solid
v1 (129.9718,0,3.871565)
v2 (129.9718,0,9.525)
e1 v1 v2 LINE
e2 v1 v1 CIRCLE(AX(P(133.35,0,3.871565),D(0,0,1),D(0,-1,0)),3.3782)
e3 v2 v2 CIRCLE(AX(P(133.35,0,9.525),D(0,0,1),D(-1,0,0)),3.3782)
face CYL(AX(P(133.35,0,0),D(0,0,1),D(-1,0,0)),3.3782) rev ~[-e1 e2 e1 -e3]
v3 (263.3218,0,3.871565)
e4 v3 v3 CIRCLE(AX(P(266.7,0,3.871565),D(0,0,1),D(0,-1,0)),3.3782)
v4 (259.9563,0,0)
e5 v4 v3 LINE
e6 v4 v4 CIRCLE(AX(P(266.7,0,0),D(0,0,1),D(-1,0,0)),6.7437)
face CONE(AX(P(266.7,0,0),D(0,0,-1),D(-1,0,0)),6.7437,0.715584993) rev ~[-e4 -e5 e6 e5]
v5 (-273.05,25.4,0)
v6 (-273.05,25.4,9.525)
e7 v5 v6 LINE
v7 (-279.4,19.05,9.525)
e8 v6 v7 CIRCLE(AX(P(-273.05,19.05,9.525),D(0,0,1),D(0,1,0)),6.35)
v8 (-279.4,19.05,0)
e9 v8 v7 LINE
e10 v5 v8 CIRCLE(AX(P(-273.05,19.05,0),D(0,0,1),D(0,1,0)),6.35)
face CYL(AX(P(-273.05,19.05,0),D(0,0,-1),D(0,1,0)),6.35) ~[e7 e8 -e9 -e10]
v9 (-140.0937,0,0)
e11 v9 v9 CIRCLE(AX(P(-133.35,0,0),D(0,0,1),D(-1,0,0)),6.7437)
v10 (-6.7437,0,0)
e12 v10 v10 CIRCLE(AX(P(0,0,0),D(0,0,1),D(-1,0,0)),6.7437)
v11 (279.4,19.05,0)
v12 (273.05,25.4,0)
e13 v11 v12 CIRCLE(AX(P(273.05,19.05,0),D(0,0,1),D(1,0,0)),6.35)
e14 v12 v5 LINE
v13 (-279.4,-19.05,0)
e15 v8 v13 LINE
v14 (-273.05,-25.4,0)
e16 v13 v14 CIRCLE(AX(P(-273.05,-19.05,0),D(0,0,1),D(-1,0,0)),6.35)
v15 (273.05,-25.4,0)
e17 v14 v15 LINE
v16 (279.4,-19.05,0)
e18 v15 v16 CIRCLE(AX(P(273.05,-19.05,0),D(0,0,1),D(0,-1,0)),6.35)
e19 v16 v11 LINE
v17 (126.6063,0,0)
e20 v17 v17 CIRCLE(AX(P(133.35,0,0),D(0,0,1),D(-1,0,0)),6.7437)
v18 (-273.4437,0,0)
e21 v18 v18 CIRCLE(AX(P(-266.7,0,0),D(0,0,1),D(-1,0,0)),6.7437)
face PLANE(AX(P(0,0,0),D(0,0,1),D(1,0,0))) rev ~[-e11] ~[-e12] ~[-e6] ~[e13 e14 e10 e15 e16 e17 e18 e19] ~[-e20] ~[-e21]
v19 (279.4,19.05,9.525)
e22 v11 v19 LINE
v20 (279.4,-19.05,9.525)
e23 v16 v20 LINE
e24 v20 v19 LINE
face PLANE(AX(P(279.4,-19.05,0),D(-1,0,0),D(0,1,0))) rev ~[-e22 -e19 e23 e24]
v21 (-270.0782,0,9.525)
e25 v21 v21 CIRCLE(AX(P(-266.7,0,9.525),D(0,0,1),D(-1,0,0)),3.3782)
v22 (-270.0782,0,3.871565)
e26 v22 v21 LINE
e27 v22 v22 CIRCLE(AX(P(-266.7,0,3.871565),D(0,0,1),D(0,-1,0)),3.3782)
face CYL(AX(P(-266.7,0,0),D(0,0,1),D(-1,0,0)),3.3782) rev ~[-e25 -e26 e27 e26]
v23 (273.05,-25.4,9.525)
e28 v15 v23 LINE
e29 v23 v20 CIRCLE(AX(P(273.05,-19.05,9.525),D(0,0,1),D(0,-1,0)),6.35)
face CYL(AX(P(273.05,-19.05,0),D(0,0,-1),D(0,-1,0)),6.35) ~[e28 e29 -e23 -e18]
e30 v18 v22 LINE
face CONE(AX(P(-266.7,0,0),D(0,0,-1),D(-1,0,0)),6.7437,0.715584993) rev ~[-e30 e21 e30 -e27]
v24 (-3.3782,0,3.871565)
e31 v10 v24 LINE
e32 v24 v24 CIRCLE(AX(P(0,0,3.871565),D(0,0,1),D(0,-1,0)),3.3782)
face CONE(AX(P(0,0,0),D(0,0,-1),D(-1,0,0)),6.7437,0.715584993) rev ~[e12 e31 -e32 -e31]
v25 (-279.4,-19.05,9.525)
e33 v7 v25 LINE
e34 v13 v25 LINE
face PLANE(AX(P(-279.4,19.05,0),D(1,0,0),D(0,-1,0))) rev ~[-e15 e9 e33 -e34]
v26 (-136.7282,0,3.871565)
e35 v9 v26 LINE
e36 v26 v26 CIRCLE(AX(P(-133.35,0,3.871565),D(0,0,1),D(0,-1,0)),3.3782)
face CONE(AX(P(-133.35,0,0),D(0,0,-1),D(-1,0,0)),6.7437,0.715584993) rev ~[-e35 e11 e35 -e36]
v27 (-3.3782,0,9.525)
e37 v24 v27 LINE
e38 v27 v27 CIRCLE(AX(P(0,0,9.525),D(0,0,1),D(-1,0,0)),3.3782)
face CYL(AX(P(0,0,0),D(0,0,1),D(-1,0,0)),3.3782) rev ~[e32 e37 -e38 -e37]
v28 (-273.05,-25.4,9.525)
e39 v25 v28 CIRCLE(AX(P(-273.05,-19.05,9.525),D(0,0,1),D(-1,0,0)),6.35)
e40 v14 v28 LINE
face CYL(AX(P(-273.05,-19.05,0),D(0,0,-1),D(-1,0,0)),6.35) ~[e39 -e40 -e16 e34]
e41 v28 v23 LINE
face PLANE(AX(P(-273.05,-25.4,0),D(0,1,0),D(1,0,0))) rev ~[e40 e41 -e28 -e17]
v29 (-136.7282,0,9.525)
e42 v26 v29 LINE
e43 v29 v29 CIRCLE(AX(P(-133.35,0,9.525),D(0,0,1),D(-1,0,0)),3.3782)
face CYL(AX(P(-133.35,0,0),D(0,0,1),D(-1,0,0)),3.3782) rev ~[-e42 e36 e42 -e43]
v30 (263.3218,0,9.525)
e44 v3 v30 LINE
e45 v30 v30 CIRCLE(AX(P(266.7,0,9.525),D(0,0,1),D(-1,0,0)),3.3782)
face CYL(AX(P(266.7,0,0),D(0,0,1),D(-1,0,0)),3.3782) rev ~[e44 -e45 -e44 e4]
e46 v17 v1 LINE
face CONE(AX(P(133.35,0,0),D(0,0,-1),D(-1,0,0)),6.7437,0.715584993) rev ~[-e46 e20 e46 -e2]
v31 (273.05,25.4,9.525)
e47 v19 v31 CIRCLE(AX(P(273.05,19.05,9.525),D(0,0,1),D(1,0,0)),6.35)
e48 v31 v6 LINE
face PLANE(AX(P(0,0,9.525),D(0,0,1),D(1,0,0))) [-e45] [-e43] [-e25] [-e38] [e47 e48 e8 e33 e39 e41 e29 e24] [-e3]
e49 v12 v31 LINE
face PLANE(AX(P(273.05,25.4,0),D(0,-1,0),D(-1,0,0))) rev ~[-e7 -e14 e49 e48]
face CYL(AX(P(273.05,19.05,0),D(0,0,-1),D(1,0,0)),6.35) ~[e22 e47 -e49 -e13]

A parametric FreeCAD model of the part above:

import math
import FreeCAD as App
import Part
import Sketcher
from FreeCAD import Vector
Q = App.Units.Quantity

doc = App.newDocument("Part")
params = doc.addObject("Spreadsheet::Sheet", "Params")
for row, (alias, value) in enumerate([
    ("sketch1_radius", "0.25 in"),
    ("sketch1_width", "21.5 in"),
    ("sketch1_height", "1.5 in"),
    ("pad1_length", "0.375 in"),
    ("sketch2_diameter", "0.266 in"),
    ("hole_diameter", "0.266 in"),
    ("hole_csink_diameter", "0.531 in"),
], start=1):
    params.set(f"A{row}", alias)
    params.set(f"B{row}", "=" + value)
    params.setAlias(f"B{row}", alias)

body = doc.addObject("PartDesign::Body", "Body")

# Sketch on XY plane
sketch1 = body.newObject("Sketcher::SketchObject", "Sketch")
sketch1.AttachmentSupport = (doc.getObject("XY_Plane"), [""])
sketch1.MapMode = "FlatFace"
sketch1.addGeometry([
    Part.LineSegment(Vector(-273, -25, 0), Vector(273, -25, 0)),  # 0
    Part.ArcOfCircle(Part.Circle(Vector(273, -19, 0), Vector(0, 0, 1), 6), math.radians(-90), math.radians(0)),  # 1
    Part.LineSegment(Vector(279, -19, 0), Vector(279, 19, 0)),  # 2
    Part.ArcOfCircle(Part.Circle(Vector(273, 19, 0), Vector(0, 0, 1), 6), math.radians(0), math.radians(90)),  # 3
    Part.LineSegment(Vector(273, 25, 0), Vector(-273, 25, 0)),  # 4
    Part.ArcOfCircle(Part.Circle(Vector(-273, 19, 0), Vector(0, 0, 1), 6), math.radians(90), math.radians(180)),  # 5
    Part.LineSegment(Vector(-279, 19, 0), Vector(-279, -19, 0)),  # 6
    Part.ArcOfCircle(Part.Circle(Vector(-273, -19, 0), Vector(0, 0, 1), 6), math.radians(180), math.radians(270)),  # 7
], False)
sketch1.addConstraint([
    Sketcher.Constraint("Tangent", 0, 2, 1, 1),
    Sketcher.Constraint("Tangent", 1, 2, 2, 1),
    Sketcher.Constraint("Tangent", 2, 2, 3, 1),
    Sketcher.Constraint("Tangent", 3, 2, 4, 1),
    Sketcher.Constraint("Tangent", 4, 2, 5, 1),
    Sketcher.Constraint("Tangent", 5, 2, 6, 1),
    Sketcher.Constraint("Tangent", 6, 2, 7, 1),
    Sketcher.Constraint("Tangent", 7, 2, 0, 1),
    Sketcher.Constraint("Horizontal", 0),
    Sketcher.Constraint("Vertical", 2),
    Sketcher.Constraint("Horizontal", 4),
    Sketcher.Constraint("Vertical", 6),
    Sketcher.Constraint("Equal", 1, 3),
    Sketcher.Constraint("Equal", 3, 5),
    Sketcher.Constraint("Equal", 5, 7),
    Sketcher.Constraint("Symmetric", 1, 3, 5, 3, -1, 1),
    Sketcher.Constraint("Radius", 1, Q("0.25 in")),
    Sketcher.Constraint("DistanceX", 0, 1, 0, 2, Q("21.5 in")),
    Sketcher.Constraint("DistanceY", 2, 1, 2, 2, Q("1.5 in")),
])
sketch1.setExpression("Constraints[16]", "Params.sketch1_radius")
sketch1.setExpression("Constraints[17]", "Params.sketch1_width")
sketch1.setExpression("Constraints[18]", "Params.sketch1_height")
pad1 = body.newObject("PartDesign::Pad", "Pad")
pad1.Profile = sketch1
pad1.setExpression("Length", "Params.pad1_length")

# Sketch on XY plane
sketch2 = body.newObject("Sketcher::SketchObject", "Sketch001")
sketch2.AttachmentSupport = (doc.getObject("XY_Plane"), [""])
sketch2.MapMode = "FlatFace"
sketch2.addGeometry([
    Part.Circle(Vector(266.7, 0, 0), Vector(0, 0, 1), 3.4),  # 0
    Part.Circle(Vector(133.3, 0, 0), Vector(0, 0, 1), 3.4),  # 1
    Part.Circle(Vector(0, 0, 0), Vector(0, 0, 1), 3.4),  # 2
    Part.Circle(Vector(-133.3, 0, 0), Vector(0, 0, 1), 3.4),  # 3
    Part.Circle(Vector(-266.7, 0, 0), Vector(0, 0, 1), 3.4),  # 4
], False)
sketch2.addConstraint([
    Sketcher.Constraint("Coincident", 2, 3, -1, 1),
    Sketcher.Constraint("Equal", 0, 1),
    Sketcher.Constraint("Equal", 1, 2),
    Sketcher.Constraint("Equal", 2, 3),
    Sketcher.Constraint("Equal", 3, 4),
    Sketcher.Constraint("Symmetric", 1, 3, 3, 3, -1, 1),
    Sketcher.Constraint("Symmetric", 0, 3, 4, 3, -1, 1),
    Sketcher.Constraint("PointOnObject", 0, 3, -1),
    Sketcher.Constraint("PointOnObject", 1, 3, -1),
    Sketcher.Constraint("Diameter", 0, Q("0.266 in")),
    Sketcher.Constraint("DistanceX", 4, 3, 0, 3, Q("21 in")),
    Sketcher.Constraint("DistanceX", 3, 3, 1, 3, Q("10.5 in")),
])
sketch2.setExpression("Constraints[9]", "Params.sketch2_diameter")
doc.recompute()
hole = body.newObject("PartDesign::Hole", "Hole")
hole.Profile = sketch2
hole.ThreadType = "None"
hole.setExpression("Diameter", "Params.hole_diameter")
hole.DepthType = "ThroughAll"
hole.HoleCutType = "Countersink"
hole.setExpression("HoleCutDiameter", "Params.hole_csink_diameter")
hole.HoleCutCountersinkAngle = 82
hole.Reversed = True

doc.recompute()
